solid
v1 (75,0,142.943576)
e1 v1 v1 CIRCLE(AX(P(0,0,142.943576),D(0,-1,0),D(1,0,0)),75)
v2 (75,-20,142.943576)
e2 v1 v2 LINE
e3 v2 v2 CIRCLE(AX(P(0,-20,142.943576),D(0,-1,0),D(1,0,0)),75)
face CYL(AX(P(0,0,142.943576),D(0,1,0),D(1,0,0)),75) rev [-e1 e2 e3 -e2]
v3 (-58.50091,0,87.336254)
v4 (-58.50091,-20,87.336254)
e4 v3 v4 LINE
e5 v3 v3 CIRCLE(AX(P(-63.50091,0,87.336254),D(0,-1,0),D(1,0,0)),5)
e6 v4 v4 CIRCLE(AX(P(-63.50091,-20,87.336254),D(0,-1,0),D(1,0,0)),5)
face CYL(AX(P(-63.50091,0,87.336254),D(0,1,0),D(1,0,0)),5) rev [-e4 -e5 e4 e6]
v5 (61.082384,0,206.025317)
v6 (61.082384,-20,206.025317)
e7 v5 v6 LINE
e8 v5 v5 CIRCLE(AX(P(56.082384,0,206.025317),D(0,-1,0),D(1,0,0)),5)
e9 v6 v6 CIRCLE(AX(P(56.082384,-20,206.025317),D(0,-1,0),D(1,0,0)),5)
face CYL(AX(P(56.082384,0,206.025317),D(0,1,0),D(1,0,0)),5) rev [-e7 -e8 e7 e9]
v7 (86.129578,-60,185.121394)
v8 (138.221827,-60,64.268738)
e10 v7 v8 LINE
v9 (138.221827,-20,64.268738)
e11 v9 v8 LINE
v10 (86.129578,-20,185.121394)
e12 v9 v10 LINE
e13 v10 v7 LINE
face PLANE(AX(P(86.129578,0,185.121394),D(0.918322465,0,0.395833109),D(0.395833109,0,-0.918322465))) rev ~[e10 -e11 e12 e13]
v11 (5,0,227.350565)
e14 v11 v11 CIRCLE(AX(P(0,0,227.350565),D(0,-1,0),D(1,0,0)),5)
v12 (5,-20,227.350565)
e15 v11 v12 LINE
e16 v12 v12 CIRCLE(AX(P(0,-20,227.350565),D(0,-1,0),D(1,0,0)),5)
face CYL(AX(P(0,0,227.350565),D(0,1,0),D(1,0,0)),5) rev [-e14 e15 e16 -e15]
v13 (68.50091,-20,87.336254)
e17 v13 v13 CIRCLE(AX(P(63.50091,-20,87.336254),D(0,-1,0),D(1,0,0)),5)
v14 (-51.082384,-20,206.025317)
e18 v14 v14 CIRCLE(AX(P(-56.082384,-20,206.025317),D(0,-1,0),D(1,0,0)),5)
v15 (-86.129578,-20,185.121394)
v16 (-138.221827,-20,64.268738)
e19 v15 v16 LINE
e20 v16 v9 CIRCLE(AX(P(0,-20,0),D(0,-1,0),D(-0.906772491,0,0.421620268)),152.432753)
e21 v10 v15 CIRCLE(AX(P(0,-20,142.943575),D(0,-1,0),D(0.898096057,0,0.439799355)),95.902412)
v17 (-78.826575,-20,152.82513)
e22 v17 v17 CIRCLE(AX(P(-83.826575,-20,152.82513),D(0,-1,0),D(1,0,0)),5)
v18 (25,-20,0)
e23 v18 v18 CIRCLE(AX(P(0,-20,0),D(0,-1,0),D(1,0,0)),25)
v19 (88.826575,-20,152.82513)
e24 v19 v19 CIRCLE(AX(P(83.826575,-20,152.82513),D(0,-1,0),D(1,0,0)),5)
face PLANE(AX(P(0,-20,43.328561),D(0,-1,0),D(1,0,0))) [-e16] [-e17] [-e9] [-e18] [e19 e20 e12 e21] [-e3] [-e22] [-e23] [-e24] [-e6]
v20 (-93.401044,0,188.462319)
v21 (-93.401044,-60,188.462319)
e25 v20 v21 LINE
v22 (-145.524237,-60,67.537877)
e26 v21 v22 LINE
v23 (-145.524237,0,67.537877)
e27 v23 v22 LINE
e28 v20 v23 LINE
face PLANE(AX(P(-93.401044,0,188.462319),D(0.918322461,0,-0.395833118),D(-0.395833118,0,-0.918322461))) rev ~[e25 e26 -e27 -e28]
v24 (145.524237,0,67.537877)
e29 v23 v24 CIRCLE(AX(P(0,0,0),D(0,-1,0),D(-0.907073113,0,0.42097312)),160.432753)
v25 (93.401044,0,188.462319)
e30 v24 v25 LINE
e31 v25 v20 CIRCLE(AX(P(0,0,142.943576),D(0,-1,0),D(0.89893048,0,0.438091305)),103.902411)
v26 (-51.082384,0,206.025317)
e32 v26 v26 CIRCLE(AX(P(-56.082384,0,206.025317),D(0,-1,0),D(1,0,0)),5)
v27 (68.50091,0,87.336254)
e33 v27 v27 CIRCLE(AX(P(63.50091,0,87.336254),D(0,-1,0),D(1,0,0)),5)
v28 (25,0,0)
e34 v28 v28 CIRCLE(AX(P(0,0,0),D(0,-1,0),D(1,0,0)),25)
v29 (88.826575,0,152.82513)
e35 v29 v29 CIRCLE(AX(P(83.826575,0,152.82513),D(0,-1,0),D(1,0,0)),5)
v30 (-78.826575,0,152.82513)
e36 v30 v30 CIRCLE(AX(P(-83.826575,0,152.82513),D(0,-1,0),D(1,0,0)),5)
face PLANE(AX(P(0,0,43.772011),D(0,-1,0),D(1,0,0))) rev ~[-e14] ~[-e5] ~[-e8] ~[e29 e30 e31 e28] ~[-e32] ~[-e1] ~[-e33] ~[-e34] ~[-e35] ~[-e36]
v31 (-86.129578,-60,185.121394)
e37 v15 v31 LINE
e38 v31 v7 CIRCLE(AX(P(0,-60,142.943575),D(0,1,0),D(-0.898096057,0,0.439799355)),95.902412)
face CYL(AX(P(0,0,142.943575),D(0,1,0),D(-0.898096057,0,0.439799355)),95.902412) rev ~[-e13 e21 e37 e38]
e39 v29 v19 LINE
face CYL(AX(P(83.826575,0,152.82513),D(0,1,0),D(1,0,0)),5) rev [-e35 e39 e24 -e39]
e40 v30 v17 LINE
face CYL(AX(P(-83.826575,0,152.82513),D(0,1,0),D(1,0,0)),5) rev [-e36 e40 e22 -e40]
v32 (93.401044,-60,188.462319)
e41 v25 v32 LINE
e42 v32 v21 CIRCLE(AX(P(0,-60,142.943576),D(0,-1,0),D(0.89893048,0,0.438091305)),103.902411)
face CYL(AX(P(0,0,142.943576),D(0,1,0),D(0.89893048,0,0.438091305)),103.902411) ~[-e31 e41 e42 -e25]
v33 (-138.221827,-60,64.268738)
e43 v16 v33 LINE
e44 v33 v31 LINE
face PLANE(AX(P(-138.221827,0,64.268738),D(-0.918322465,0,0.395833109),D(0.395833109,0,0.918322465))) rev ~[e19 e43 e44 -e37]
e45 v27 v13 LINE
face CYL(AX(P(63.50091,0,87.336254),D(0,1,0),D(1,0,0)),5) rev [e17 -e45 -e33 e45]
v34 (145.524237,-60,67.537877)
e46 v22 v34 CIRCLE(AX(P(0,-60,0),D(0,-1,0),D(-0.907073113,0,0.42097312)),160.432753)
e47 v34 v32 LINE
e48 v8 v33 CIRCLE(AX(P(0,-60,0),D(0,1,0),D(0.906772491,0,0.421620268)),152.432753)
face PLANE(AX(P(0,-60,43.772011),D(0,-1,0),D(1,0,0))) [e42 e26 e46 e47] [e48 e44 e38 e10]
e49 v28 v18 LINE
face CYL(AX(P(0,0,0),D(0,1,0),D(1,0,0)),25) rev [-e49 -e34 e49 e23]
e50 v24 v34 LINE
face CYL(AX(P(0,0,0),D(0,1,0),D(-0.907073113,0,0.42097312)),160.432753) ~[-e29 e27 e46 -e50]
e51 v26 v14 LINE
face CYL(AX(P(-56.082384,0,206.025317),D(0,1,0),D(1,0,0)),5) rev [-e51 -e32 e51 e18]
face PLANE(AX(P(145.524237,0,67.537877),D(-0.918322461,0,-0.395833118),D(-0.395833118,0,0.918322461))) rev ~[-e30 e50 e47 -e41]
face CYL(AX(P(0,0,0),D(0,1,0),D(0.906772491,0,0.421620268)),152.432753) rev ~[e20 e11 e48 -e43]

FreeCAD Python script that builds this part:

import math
import FreeCAD as App
import Part
import Sketcher
from FreeCAD import Vector
Q = App.Units.Quantity

doc = App.newDocument("Part")
params = doc.addObject("Spreadsheet::Sheet", "Params")
for row, (alias, value) in enumerate([
    ("sketch1_diameter", "50 mm"),
    ("sketch1_diameter2", "10 mm"),
    ("sketch1_diameter3", "150 mm"),
    ("pad1_length", "20 mm"),
    ("pad2_length", "60 mm"),
], start=1):
    params.set(f"A{row}", alias)
    params.set(f"B{row}", "=" + value)
    params.setAlias(f"B{row}", alias)

body = doc.addObject("PartDesign::Body", "Body")

sketch1 = body.newObject("Sketcher::SketchObject", "Sketch")
sketch1.AttachmentSupport = (doc.getObject("XZ_Plane"), [""])
sketch1.MapMode = "FlatFace"
sketch1.addGeometry(Part.ArcOfCircle(Part.Circle(Vector(0, 143, 0), Vector(0, 0, 1), 96), math.radians(26), math.radians(154)), False)
sketch1.addGeometry(Part.LineSegment(Vector(-86, 185, 0), Vector(-138, 64, 0)), False)
sketch1.addGeometry(Part.ArcOfCircle(Part.Circle(Vector(0, 0, 0), Vector(0, 0, 1), 152), math.radians(155), math.radians(385)), False)
sketch1.addGeometry(Part.LineSegment(Vector(138, 64, 0), Vector(86, 185, 0)), False)
sketch1.addGeometry(Part.Circle(Vector(0, 0, 0), Vector(0, 0, 1), 25), False)
sketch1.addGeometry(Part.Circle(Vector(-64, 87, 0), Vector(0, 0, 1), 5), False)
sketch1.addGeometry(Part.Circle(Vector(64, 87, 0), Vector(0, 0, 1), 5), False)
sketch1.addGeometry(Part.Circle(Vector(-84, 153, 0), Vector(0, 0, 1), 5), False)
sketch1.addGeometry(Part.Circle(Vector(0, 143, 0), Vector(0, 0, 1), 75), False)
sketch1.addGeometry(Part.Circle(Vector(-56, 206, 0), Vector(0, 0, 1), 5), False)
sketch1.addGeometry(Part.Circle(Vector(0, 227, 0), Vector(0, 0, 1), 5), False)
sketch1.addGeometry(Part.Circle(Vector(84, 153, 0), Vector(0, 0, 1), 5), False)
sketch1.addGeometry(Part.Circle(Vector(56, 206, 0), Vector(0, 0, 1), 5), False)
sketch1.addConstraint(Sketcher.Constraint("Coincident", 0, 2, 1, 1))
sketch1.addConstraint(Sketcher.Constraint("Coincident", 1, 2, 2, 1))
sketch1.addConstraint(Sketcher.Constraint("Coincident", 2, 2, 3, 1))
sketch1.addConstraint(Sketcher.Constraint("Coincident", 3, 2, 0, 1))
sketch1.addConstraint(Sketcher.Constraint("Coincident", 2, 3, -1, 1))
sketch1.addConstraint(Sketcher.Constraint("Coincident", 4, 3, -1, 1))
sketch1.addConstraint(Sketcher.Constraint("Coincident", 8, 3, 0, 3))
sketch1.addConstraint(Sketcher.Constraint("Equal", 5, 6))
sketch1.addConstraint(Sketcher.Constraint("Equal", 6, 7))
sketch1.addConstraint(Sketcher.Constraint("Equal", 7, 9))
sketch1.addConstraint(Sketcher.Constraint("Equal", 9, 10))
sketch1.addConstraint(Sketcher.Constraint("Equal", 10, 11))
sketch1.addConstraint(Sketcher.Constraint("Equal", 11, 12))
sketch1.addConstraint(Sketcher.Constraint("Symmetric", 5, 3, 6, 3, -2))
sketch1.addConstraint(Sketcher.Constraint("Symmetric", 7, 3, 11, 3, -2))
sketch1.addConstraint(Sketcher.Constraint("Symmetric", 9, 3, 12, 3, -2))
sketch1.addConstraint(Sketcher.Constraint("Symmetric", 0, 2, 3, 2, -2))
sketch1.addConstraint(Sketcher.Constraint("PointOnObject", 10, 3, -2))
sketch1.addConstraint(Sketcher.Constraint("Horizontal", 1, 2, 2, 2))
sketch1.addConstraint(Sketcher.Constraint("Diameter", 4, Q("50 mm")))
sketch1.addConstraint(Sketcher.Constraint("Diameter", 5, Q("10 mm")))
sketch1.addConstraint(Sketcher.Constraint("Diameter", 8, Q("150 mm")))
sketch1.addConstraint(Sketcher.Constraint("Radius", 0, Q("95.902412 mm")))
sketch1.addConstraint(Sketcher.Constraint("Radius", 2, Q("152.432753 mm")))
sketch1.addConstraint(Sketcher.Constraint("DistanceX", 5, 3, -1, 1, Q("63.50091 mm")))
sketch1.addConstraint(Sketcher.Constraint("DistanceY", -1, 1, 7, 3, Q("152.82513 mm")))
sketch1.addConstraint(Sketcher.Constraint("DistanceY", -1, 1, 1, 2, Q("64.268738 mm")))
sketch1.addConstraint(Sketcher.Constraint("DistanceY", 5, 3, 0, 3, Q("55.607321 mm")))
sketch1.addConstraint(Sketcher.Constraint("DistanceX", 7, 3, 9, 3, Q("27.744191 mm")))
sketch1.addConstraint(Sketcher.Constraint("DistanceY", 8, 3, 9, 3, Q("63.081741 mm")))
sketch1.addConstraint(Sketcher.Constraint("DistanceY", 8, 3, 10, 3, Q("84.406989 mm")))
sketch1.addConstraint(Sketcher.Constraint("DistanceX", 9, 3, 11, 3, Q("139.908959 mm")))
sketch1.addConstraint(Sketcher.Constraint("DistanceY", 0, 3, 0, 2, Q("42.177819 mm")))
sketch1.addConstraint(Sketcher.Constraint("Distance", 1, Q("131.601546 mm")))
sketch1.setExpression("Constraints[19]", "Params.sketch1_diameter")
sketch1.setExpression("Constraints[20]", "Params.sketch1_diameter2")
sketch1.setExpression("Constraints[21]", "Params.sketch1_diameter3")
pad1 = body.newObject("PartDesign::Pad", "Pad")
pad1.Profile = sketch1
pad1.setExpression("Length", "Params.pad1_length")

sketch2 = body.newObject("Sketcher::SketchObject", "Sketch001")
sketch2.AttachmentSupport = (doc.getObject("XZ_Plane"), [""])
sketch2.MapMode = "FlatFace"
sketch2.addGeometry(Part.LineSegment(Vector(145.524237, 67.537877, 0), Vector(93.401044, 188.462319, 0)), False)
sketch2.addGeometry(Part.ArcOfCircle(Part.Circle(Vector(0, 142.943576, 0), Vector(0, 0, 1), 103.902411), math.radians(25.982162), math.radians(154.017838)), False)
sketch2.addGeometry(Part.LineSegment(Vector(-93.401044, 188.462319, 0), Vector(-145.524237, 67.537877, 0)), False)
sketch2.addGeometry(Part.ArcOfCircle(Part.Circle(Vector(0, 0, 0), Vector(0, 0, 1), 160.432753), math.radians(155.10396), math.radians(384.89604)), False)
sketch2.addGeometry(Part.ArcOfCircle(Part.Circle(Vector(0, 0, 0), Vector(0, 0, 1), 152.432753), math.radians(155.063076), math.radians(384.936924)), False)
sketch2.addGeometry(Part.LineSegment(Vector(-138.221827, 64.268738, 0), Vector(-86.129578, 185.121394, 0)), False)
sketch2.addGeometry(Part.ArcOfCircle(Part.Circle(Vector(0, 142.943575, 0), Vector(0, 0, 1), 95.902412), math.radians(26.09108), math.radians(153.90892)), False)
sketch2.addGeometry(Part.LineSegment(Vector(86.129578, 185.121394, 0), Vector(138.221827, 64.268738, 0)), False)
sketch2.addConstraint(Sketcher.Constraint("Coincident", 0, 2, 1, 1))
sketch2.addConstraint(Sketcher.Constraint("Coincident", 1, 2, 2, 1))
sketch2.addConstraint(Sketcher.Constraint("Coincident", 2, 2, 3, 1))
sketch2.addConstraint(Sketcher.Constraint("Coincident", 3, 2, 0, 1))
sketch2.addConstraint(Sketcher.Constraint("Coincident", 4, 1, 5, 1))
sketch2.addConstraint(Sketcher.Constraint("Coincident", 5, 2, 6, 2))
sketch2.addConstraint(Sketcher.Constraint("Coincident", 6, 1, 7, 1))
sketch2.addConstraint(Sketcher.Constraint("Coincident", 7, 2, 4, 2))
sketch2.addConstraint(Sketcher.Constraint("Coincident", 3, 3, -1, 1))
sketch2.addConstraint(Sketcher.Constraint("Coincident", 4, 3, -1, 1))
sketch2.addConstraint(Sketcher.Constraint("Coincident", 6, 3, 1, 3))
sketch2.addConstraint(Sketcher.Constraint("PointOnObject", 1, 3, -2))
sketch2.addConstraint(Sketcher.Constraint("Radius", 1, Q("103.902411 mm")))
sketch2.addConstraint(Sketcher.Constraint("Radius", 6, Q("95.902412 mm")))
sketch2.addConstraint(Sketcher.Constraint("Radius", 3, Q("160.432753 mm")))
sketch2.addConstraint(Sketcher.Constraint("Radius", 4, Q("152.432753 mm")))
sketch2.addConstraint(Sketcher.Constraint("DistanceY", 2, 2, 6, 3, Q("75.405698 mm")))
sketch2.addConstraint(Sketcher.Constraint("DistanceY", 3, 2, 6, 3, Q("75.405698 mm")))
sketch2.addConstraint(Sketcher.Constraint("DistanceY", -1, 1, 0, 2, Q("188.462319 mm")))
sketch2.addConstraint(Sketcher.Constraint("DistanceY", -1, 1, 1, 2, Q("188.462319 mm")))
sketch2.addConstraint(Sketcher.Constraint("DistanceY", -1, 1, 4, 1, Q("64.268738 mm")))
sketch2.addConstraint(Sketcher.Constraint("DistanceY", -1, 1, 7, 2, Q("64.268738 mm")))
sketch2.addConstraint(Sketcher.Constraint("DistanceX", 1, 2, 0, 2, Q("186.802088 mm")))
sketch2.addConstraint(Sketcher.Constraint("DistanceY", 6, 3, 5, 2, Q("42.177819 mm")))
sketch2.addConstraint(Sketcher.Constraint("DistanceY", 6, 3, 6, 1, Q("42.177819 mm")))
pad2 = body.newObject("PartDesign::Pad", "Pad001")
pad2.Profile = sketch2
pad2.setExpression("Length", "Params.pad2_length")

doc.recompute()
